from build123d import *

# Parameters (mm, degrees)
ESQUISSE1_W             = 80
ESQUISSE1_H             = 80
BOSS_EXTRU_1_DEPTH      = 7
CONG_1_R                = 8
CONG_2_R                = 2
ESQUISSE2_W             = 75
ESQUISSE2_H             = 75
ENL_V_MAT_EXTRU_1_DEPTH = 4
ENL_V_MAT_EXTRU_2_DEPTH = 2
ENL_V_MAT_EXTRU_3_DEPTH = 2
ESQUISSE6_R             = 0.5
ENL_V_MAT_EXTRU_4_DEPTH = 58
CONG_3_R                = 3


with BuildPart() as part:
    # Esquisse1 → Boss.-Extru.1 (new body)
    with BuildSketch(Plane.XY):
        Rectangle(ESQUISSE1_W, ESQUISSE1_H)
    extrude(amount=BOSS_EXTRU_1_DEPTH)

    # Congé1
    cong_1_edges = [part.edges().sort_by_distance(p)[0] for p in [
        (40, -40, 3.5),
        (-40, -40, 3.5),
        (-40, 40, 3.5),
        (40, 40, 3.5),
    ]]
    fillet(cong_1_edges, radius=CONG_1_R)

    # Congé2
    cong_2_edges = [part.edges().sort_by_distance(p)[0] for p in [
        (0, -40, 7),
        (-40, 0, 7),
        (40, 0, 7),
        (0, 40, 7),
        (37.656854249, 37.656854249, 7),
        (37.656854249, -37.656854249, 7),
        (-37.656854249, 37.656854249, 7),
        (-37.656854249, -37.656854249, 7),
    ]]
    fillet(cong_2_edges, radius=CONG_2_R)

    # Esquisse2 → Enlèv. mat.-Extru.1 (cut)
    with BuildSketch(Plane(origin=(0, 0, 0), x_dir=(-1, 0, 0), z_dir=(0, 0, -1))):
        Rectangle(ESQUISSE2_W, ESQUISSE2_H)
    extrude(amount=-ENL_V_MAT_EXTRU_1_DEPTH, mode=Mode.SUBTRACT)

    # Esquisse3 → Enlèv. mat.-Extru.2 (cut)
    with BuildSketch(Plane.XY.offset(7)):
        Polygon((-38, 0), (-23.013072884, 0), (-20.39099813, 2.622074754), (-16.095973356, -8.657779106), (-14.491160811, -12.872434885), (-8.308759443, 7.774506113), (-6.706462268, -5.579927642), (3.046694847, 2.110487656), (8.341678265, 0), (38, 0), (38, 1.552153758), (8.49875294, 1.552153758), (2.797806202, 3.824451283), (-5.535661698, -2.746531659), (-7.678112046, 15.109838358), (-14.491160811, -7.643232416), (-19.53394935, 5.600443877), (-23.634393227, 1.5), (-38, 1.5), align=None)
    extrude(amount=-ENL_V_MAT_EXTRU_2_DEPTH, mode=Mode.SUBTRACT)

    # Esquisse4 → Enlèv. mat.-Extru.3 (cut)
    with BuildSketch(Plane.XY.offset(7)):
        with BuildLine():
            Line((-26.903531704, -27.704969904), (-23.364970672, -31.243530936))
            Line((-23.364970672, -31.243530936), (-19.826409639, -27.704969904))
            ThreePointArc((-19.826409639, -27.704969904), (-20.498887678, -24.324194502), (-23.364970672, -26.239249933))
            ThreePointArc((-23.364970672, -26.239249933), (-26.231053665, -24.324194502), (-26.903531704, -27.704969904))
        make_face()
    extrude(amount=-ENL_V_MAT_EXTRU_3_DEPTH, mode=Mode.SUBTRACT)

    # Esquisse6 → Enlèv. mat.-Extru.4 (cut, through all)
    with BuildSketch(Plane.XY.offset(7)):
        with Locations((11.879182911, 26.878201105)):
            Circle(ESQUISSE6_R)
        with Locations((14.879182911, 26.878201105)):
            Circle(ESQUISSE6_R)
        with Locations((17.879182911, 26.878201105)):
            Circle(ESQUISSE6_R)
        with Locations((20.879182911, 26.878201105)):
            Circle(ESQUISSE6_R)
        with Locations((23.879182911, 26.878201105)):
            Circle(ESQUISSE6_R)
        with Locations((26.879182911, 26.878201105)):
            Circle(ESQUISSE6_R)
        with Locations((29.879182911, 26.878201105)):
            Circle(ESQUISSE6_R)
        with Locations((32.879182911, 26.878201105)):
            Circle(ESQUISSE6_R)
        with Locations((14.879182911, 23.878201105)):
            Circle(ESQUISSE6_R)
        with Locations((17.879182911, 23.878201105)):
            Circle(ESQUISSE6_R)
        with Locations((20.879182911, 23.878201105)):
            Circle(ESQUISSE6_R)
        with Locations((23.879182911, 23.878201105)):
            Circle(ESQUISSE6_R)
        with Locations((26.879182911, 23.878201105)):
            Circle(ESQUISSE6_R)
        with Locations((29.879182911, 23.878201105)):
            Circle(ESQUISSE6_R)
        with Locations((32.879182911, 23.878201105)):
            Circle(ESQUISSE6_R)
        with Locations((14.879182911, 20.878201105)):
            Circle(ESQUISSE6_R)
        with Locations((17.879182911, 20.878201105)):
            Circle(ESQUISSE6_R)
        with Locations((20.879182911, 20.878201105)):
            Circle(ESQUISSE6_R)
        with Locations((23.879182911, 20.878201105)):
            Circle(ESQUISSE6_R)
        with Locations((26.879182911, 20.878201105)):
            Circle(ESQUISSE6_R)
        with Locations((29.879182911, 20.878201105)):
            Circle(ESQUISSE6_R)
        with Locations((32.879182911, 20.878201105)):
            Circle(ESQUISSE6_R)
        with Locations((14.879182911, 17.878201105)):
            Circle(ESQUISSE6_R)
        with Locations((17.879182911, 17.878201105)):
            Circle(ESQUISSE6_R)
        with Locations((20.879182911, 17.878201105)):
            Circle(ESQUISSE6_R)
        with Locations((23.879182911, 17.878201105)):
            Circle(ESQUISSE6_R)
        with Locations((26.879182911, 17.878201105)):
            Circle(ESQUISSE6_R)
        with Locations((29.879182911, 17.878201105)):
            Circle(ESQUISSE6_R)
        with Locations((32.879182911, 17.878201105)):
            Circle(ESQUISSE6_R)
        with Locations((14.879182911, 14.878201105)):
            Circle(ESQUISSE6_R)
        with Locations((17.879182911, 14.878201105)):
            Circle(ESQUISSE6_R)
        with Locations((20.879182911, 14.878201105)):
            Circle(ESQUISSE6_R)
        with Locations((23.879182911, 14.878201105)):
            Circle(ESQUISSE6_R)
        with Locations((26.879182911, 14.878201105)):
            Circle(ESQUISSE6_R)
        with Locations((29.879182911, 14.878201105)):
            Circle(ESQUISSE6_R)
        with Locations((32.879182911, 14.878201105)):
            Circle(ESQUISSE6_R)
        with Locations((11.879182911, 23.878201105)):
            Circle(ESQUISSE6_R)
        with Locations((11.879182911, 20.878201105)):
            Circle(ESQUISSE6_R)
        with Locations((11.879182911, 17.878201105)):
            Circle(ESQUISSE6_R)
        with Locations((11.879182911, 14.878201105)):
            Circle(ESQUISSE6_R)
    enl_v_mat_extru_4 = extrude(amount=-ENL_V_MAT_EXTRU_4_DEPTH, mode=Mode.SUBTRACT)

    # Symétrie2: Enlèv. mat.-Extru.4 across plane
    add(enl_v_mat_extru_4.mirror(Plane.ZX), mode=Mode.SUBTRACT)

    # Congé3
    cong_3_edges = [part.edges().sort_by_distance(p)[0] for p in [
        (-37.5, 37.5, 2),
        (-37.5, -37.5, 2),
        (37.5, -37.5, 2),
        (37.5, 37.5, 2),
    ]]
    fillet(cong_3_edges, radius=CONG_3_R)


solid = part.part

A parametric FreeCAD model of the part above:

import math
import FreeCAD as App
import Part
import Sketcher

V = App.Vector
Q = App.Units.Quantity


def edges_at(feature, points):
    """Names of the edges that pass closest to the given points."""
    edges = feature.Shape.Edges
    near = lambda p: min(range(len(edges)), key=lambda i: edges[i].distToShape(Part.Vertex(*p))[0])
    return sorted({f"Edge{near(p) + 1}" for p in points})

doc = App.newDocument("Part")
params = doc.addObject("Spreadsheet::Sheet", "Params")
for row, (alias, value) in enumerate([
    ("sketch1_width", "80 mm"),
    ("pad1_length", "7 mm"),
    ("fillet_radius", "8 mm"),
    ("fillet2_radius", "2 mm"),
    ("sketch2_width", "75 mm"),
    ("pocket1_length", "4 mm"),
    ("sketch3_height", "1.5 mm"),
    ("pocket2_length", "2 mm"),
    ("pocket3_length", "2 mm"),
    ("sketch5_diameter", "1 mm"),
    ("fillet3_radius", "3 mm"),
], start=1):
    params.set(f"A{row}", alias)
    params.set(f"B{row}", "=" + value)
    params.setAlias(f"B{row}", alias)

body = doc.addObject("PartDesign::Body", "Body")

# Sketch on XY plane
sketch1 = body.newObject("Sketcher::SketchObject", "Sketch")
sketch1.AttachmentSupport = (doc.getObject("XY_Plane"), [""])
sketch1.MapMode = "FlatFace"
sketch1.addGeometry([
    Part.LineSegment(V(-40, 40, 0), V(-40, -40, 0)),
    Part.LineSegment(V(-40, -40, 0), V(40, -40, 0)),
    Part.LineSegment(V(40, -40, 0), V(40, 40, 0)),
    Part.LineSegment(V(40, 40, 0), V(-40, 40, 0)),
], False)
sketch1.addConstraint([
    Sketcher.Constraint("Coincident", 0, 2, 1, 1),
    Sketcher.Constraint("Coincident", 1, 2, 2, 1),
    Sketcher.Constraint("Coincident", 2, 2, 3, 1),
    Sketcher.Constraint("Coincident", 3, 2, 0, 1),
    Sketcher.Constraint("Vertical", 0),
    Sketcher.Constraint("Horizontal", 1),
    Sketcher.Constraint("Vertical", 2),
    Sketcher.Constraint("Horizontal", 3),
    Sketcher.Constraint("Symmetric", 0, 2, 2, 2, -1, 1),
    Sketcher.Constraint("Equal", 3, 0),
    Sketcher.Constraint("DistanceX", 1, 1, 1, 2, Q("80 mm")),
])
sketch1.setExpression("Constraints[10]", "Params.sketch1_width")
pad1 = body.newObject("PartDesign::Pad", "Pad")
pad1.Profile = sketch1
pad1.setExpression("Length", "Params.pad1_length")
doc.recompute()

fillet = body.newObject("PartDesign::Fillet", "Fillet")
fillet.Base = (pad1, edges_at(pad1, [
    (40, -40, 3.5),
    (-40, -40, 3.5),
    (-40, 40, 3.5),
    (40, 40, 3.5),
]))
fillet.setExpression("Radius", "Params.fillet_radius")
doc.recompute()

fillet2 = body.newObject("PartDesign::Fillet", "Fillet001")
fillet2.Base = (fillet, edges_at(fillet, [
    (0, -40, 7),
    (-40, 0, 7),
    (40, 0, 7),
    (0, 40, 7),
    (37.657, 37.657, 7),
    (37.657, -37.657, 7),
    (-37.657, 37.657, 7),
    (-37.657, -37.657, 7),
]))
fillet2.setExpression("Radius", "Params.fillet2_radius")

# Sketch on XY plane
sketch2 = body.newObject("Sketcher::SketchObject", "Sketch001")
sketch2.AttachmentSupport = (doc.getObject("XY_Plane"), [""])
sketch2.MapMode = "FlatFace"
sketch2.addGeometry([
    Part.LineSegment(V(38, 38, 0), V(38, -38, 0)),
    Part.LineSegment(V(38, -38, 0), V(-38, -38, 0)),
    Part.LineSegment(V(-38, -38, 0), V(-38, 38, 0)),
    Part.LineSegment(V(-38, 38, 0), V(38, 38, 0)),
], False)
sketch2.addConstraint([
    Sketcher.Constraint("Coincident", 0, 2, 1, 1),
    Sketcher.Constraint("Coincident", 1, 2, 2, 1),
    Sketcher.Constraint("Coincident", 2, 2, 3, 1),
    Sketcher.Constraint("Coincident", 3, 2, 0, 1),
    Sketcher.Constraint("Vertical", 0),
    Sketcher.Constraint("Horizontal", 1),
    Sketcher.Constraint("Vertical", 2),
    Sketcher.Constraint("Horizontal", 3),
    Sketcher.Constraint("Symmetric", 0, 2, 2, 2, -1, 1),
    Sketcher.Constraint("Equal", 3, 0),
    Sketcher.Constraint("DistanceX", 1, 2, 1, 1, Q("75 mm")),
])
sketch2.setExpression("Constraints[10]", "Params.sketch2_width")
pocket1 = body.newObject("PartDesign::Pocket", "Pocket")
pocket1.Profile = sketch2
pocket1.setExpression("Length", "Params.pocket1_length")
pocket1.Reversed = True

# Sketch on XY plane
sketch3 = body.newObject("Sketcher::SketchObject", "Sketch002")
sketch3.AttachmentSupport = (doc.getObject("XY_Plane"), [""])
sketch3.MapMode = "FlatFace"
sketch3.AttachmentOffset = App.Placement(V(0, 0, 7), App.Rotation())
sketch3.addGeometry([
    Part.LineSegment(V(-38, 0, 0), V(-23, 0, 0)),  # 0
    Part.LineSegment(V(-23, 0, 0), V(-20.4, 2.6, 0)),  # 1
    Part.LineSegment(V(-20.4, 2.6, 0), V(-16.1, -8.7, 0)),  # 2
    Part.LineSegment(V(-16.1, -8.7, 0), V(-14.5, -12.9, 0)),  # 3
    Part.LineSegment(V(-14.5, -12.9, 0), V(-8.3, 7.8, 0)),  # 4
    Part.LineSegment(V(-8.3, 7.8, 0), V(-6.7, -5.6, 0)),  # 5
    Part.LineSegment(V(-6.7, -5.6, 0), V(3, 2.1, 0)),  # 6
    Part.LineSegment(V(3, 2.1, 0), V(8.3, 0, 0)),  # 7
    Part.LineSegment(V(8.3, 0, 0), V(38, 0, 0)),  # 8
    Part.LineSegment(V(38, 0, 0), V(38, 1.6, 0)),  # 9
    Part.LineSegment(V(38, 1.6, 0), V(8.5, 1.6, 0)),  # 10
    Part.LineSegment(V(8.5, 1.6, 0), V(2.8, 3.8, 0)),  # 11
    Part.LineSegment(V(2.8, 3.8, 0), V(-5.5, -2.7, 0)),  # 12
    Part.LineSegment(V(-5.5, -2.7, 0), V(-7.7, 15.1, 0)),  # 13
    Part.LineSegment(V(-7.7, 15.1, 0), V(-14.5, -7.6, 0)),  # 14
    Part.LineSegment(V(-14.5, -7.6, 0), V(-19.5, 5.6, 0)),  # 15
    Part.LineSegment(V(-19.5, 5.6, 0), V(-23.6, 1.5, 0)),  # 16
    Part.LineSegment(V(-23.6, 1.5, 0), V(-38, 1.5, 0)),  # 17
    Part.LineSegment(V(-38, 1.5, 0), V(-38, 0, 0)),  # 18
], False)
sketch3.addConstraint([
    Sketcher.Constraint("Coincident", 0, 2, 1, 1),
    Sketcher.Constraint("Coincident", 1, 2, 2, 1),
    Sketcher.Constraint("Coincident", 2, 2, 3, 1),
    Sketcher.Constraint("Coincident", 3, 2, 4, 1),
    Sketcher.Constraint("Coincident", 4, 2, 5, 1),
    Sketcher.Constraint("Coincident", 5, 2, 6, 1),
    Sketcher.Constraint("Coincident", 6, 2, 7, 1),
    Sketcher.Constraint("Coincident", 7, 2, 8, 1),
    Sketcher.Constraint("Coincident", 8, 2, 9, 1),
    Sketcher.Constraint("Coincident", 9, 2, 10, 1),
    Sketcher.Constraint("Coincident", 10, 2, 11, 1),
    Sketcher.Constraint("Coincident", 11, 2, 12, 1),
    Sketcher.Constraint("Coincident", 12, 2, 13, 1),
    Sketcher.Constraint("Coincident", 13, 2, 14, 1),
    Sketcher.Constraint("Coincident", 14, 2, 15, 1),
    Sketcher.Constraint("Coincident", 15, 2, 16, 1),
    Sketcher.Constraint("Coincident", 16, 2, 17, 1),
    Sketcher.Constraint("Coincident", 17, 2, 18, 1),
    Sketcher.Constraint("Coincident", 18, 2, 0, 1),
    Sketcher.Constraint("Horizontal", 0),
    Sketcher.Constraint("Horizontal", 8),
    Sketcher.Constraint("Vertical", 9),
    Sketcher.Constraint("Horizontal", 10),
    Sketcher.Constraint("Horizontal", 17),
    Sketcher.Constraint("Vertical", 18),
    Sketcher.Constraint("Symmetric", 8, 2, 18, 2, -1, 1),
    Sketcher.Constraint("PointOnObject", 0, 2, -1),
    Sketcher.Constraint("Parallel", 2, 3),
    Sketcher.Constraint("Parallel", 7, 11),
    Sketcher.Constraint("Parallel", 6, 12),
    Sketcher.Constraint("Parallel", 5, 13),
    Sketcher.Constraint("Parallel", 4, 14),
    Sketcher.Constraint("Parallel", 3, 15),
    Sketcher.Constraint("Parallel", 1, 16),
    Sketcher.Constraint("Vertical", 3, 2, 14, 2),
    Sketcher.Constraint("Angle", 1, Q("45 deg")),
    Sketcher.Constraint("DistanceY", 18, 2, 18, 1, Q("1.5 mm")),
    Sketcher.Constraint("DistanceX", -1, 1, 8, 2, Q("38 mm")),
    Sketcher.Constraint("DistanceX", 1, 2, -1, 1, Q("20.390998 mm")),
    Sketcher.Constraint("DistanceX", 8, 1, 8, 2, Q("29.658322 mm")),
    Sketcher.Constraint("DistanceX", 0, 2, 2, 2, Q("6.9171 mm")),
    Sketcher.Constraint("DistanceX", 3, 2, 4, 2, Q("6.182401 mm")),
    Sketcher.Constraint("DistanceX", 3, 2, 5, 2, Q("7.784699 mm")),
    Sketcher.Constraint("DistanceX", 5, 2, 12, 2, Q("1.170801 mm")),
    Sketcher.Constraint("DistanceY", 14, 2, 12, 2, Q("4.896701 mm")),
    Sketcher.Constraint("Distance", 3, Q("4.50985 mm")),
    Sketcher.Constraint("Distance", 6, Q("12.420409 mm")),
    Sketcher.Constraint("Distance", 7, Q("5.700088 mm")),
    Sketcher.Constraint("Distance", 11, Q("6.137111 mm")),
    Sketcher.Constraint("Distance", 12, Q("10.612469 mm")),
    Sketcher.Constraint("Distance", 13, Q("17.984439 mm")),
    Sketcher.Constraint("DistanceX", 0, 1, 0, 2, Q("14.986927 mm")),
    Sketcher.Constraint("DistanceX", 10, 2, 10, 1, Q("29.501247 mm")),
    Sketcher.Constraint("DistanceX", 17, 2, 17, 1, Q("14.365607 mm")),
    Sketcher.Constraint("DistanceY", 9, 1, 9, 2, Q("1.552154 mm")),
    Sketcher.Constraint("DistanceY", 2, 2, -1, 1, Q("8.657779 mm")),
])
sketch3.setExpression("Constraints[36]", "Params.sketch3_height")
pocket2 = body.newObject("PartDesign::Pocket", "Pocket001")
pocket2.Profile = sketch3
pocket2.setExpression("Length", "Params.pocket2_length")

# Sketch on XY plane
sketch4 = body.newObject("Sketcher::SketchObject", "Sketch003")
sketch4.AttachmentSupport = (doc.getObject("XY_Plane"), [""])
sketch4.MapMode = "FlatFace"
sketch4.AttachmentOffset = App.Placement(V(0, 0, 7), App.Rotation())
sketch4.addGeometry([
    Part.LineSegment(V(-26.9, -27.7, 0), V(-23.4, -31.2, 0)),
    Part.LineSegment(V(-23.4, -31.2, 0), V(-19.8, -27.7, 0)),
    Part.ArcOfCircle(Part.Circle(V(-21.3, -26.2, 0), V(0, 0, 1), 2.1), math.radians(-45), math.radians(180)),
    Part.ArcOfCircle(Part.Circle(V(-25.4, -26.2, 0), V(0, 0, 1), 2.1), math.radians(0), math.radians(225)),
], False)
sketch4.addConstraint([
    Sketcher.Constraint("Coincident", 0, 2, 1, 1),
    Sketcher.Constraint("Tangent", 1, 2, 2, 1),
    Sketcher.Constraint("Tangent", 2, 2, 3, 1),
    Sketcher.Constraint("Tangent", 3, 2, 0, 1),
    Sketcher.Constraint("Equal", 2, 3),
    Sketcher.Constraint("Perpendicular", 0, 1),
    Sketcher.Constraint("Horizontal", 2, 3, 3, 3),
    Sketcher.Constraint("Horizontal", 1, 2, 3, 2),
    Sketcher.Constraint("Radius", 2, Q("2.072841 mm")),
    Sketcher.Constraint("DistanceX", 2, 3, -1, 1, Q("21.29213 mm")),
    Sketcher.Constraint("DistanceY", 2, 3, -1, 1, Q("26.23925 mm")),
])
pocket3 = body.newObject("PartDesign::Pocket", "Pocket002")
pocket3.Profile = sketch4
pocket3.setExpression("Length", "Params.pocket3_length")

# Sketch on XY plane
sketch5 = body.newObject("Sketcher::SketchObject", "Sketch004")
sketch5.AttachmentSupport = (doc.getObject("XY_Plane"), [""])
sketch5.MapMode = "FlatFace"
sketch5.AttachmentOffset = App.Placement(V(0, 0, 7), App.Rotation())
sketch5.addGeometry([
    Part.Circle(V(11.9, 26.9, 0), V(0, 0, 1), 0.5),  # 0
    Part.Circle(V(14.9, 26.9, 0), V(0, 0, 1), 0.5),  # 1
    Part.Circle(V(17.9, 26.9, 0), V(0, 0, 1), 0.5),  # 2
    Part.Circle(V(20.9, 26.9, 0), V(0, 0, 1), 0.5),  # 3
    Part.Circle(V(23.9, 26.9, 0), V(0, 0, 1), 0.5),  # 4
    Part.Circle(V(26.9, 26.9, 0), V(0, 0, 1), 0.5),  # 5
    Part.Circle(V(29.9, 26.9, 0), V(0, 0, 1), 0.5),  # 6
    Part.Circle(V(32.9, 26.9, 0), V(0, 0, 1), 0.5),  # 7
    Part.Circle(V(14.9, 23.9, 0), V(0, 0, 1), 0.5),  # 8
    Part.Circle(V(17.9, 23.9, 0), V(0, 0, 1), 0.5),  # 9
    Part.Circle(V(20.9, 23.9, 0), V(0, 0, 1), 0.5),  # 10
    Part.Circle(V(23.9, 23.9, 0), V(0, 0, 1), 0.5),  # 11
    Part.Circle(V(26.9, 23.9, 0), V(0, 0, 1), 0.5),  # 12
    Part.Circle(V(29.9, 23.9, 0), V(0, 0, 1), 0.5),  # 13
    Part.Circle(V(32.9, 23.9, 0), V(0, 0, 1), 0.5),  # 14
    Part.Circle(V(14.9, 20.9, 0), V(0, 0, 1), 0.5),  # 15
    Part.Circle(V(17.9, 20.9, 0), V(0, 0, 1), 0.5),  # 16
    Part.Circle(V(20.9, 20.9, 0), V(0, 0, 1), 0.5),  # 17
    Part.Circle(V(23.9, 20.9, 0), V(0, 0, 1), 0.5),  # 18
    Part.Circle(V(26.9, 20.9, 0), V(0, 0, 1), 0.5),  # 19
    Part.Circle(V(29.9, 20.9, 0), V(0, 0, 1), 0.5),  # 20
    Part.Circle(V(32.9, 20.9, 0), V(0, 0, 1), 0.5),  # 21
    Part.Circle(V(14.9, 17.9, 0), V(0, 0, 1), 0.5),  # 22
    Part.Circle(V(17.9, 17.9, 0), V(0, 0, 1), 0.5),  # 23
    Part.Circle(V(20.9, 17.9, 0), V(0, 0, 1), 0.5),  # 24
    Part.Circle(V(23.9, 17.9, 0), V(0, 0, 1), 0.5),  # 25
    Part.Circle(V(26.9, 17.9, 0), V(0, 0, 1), 0.5),  # 26
    Part.Circle(V(29.9, 17.9, 0), V(0, 0, 1), 0.5),  # 27
    Part.Circle(V(32.9, 17.9, 0), V(0, 0, 1), 0.5),  # 28
    Part.Circle(V(14.9, 14.9, 0), V(0, 0, 1), 0.5),  # 29
    Part.Circle(V(17.9, 14.9, 0), V(0, 0, 1), 0.5),  # 30
    Part.Circle(V(20.9, 14.9, 0), V(0, 0, 1), 0.5),  # 31
    Part.Circle(V(23.9, 14.9, 0), V(0, 0, 1), 0.5),  # 32
    Part.Circle(V(26.9, 14.9, 0), V(0, 0, 1), 0.5),  # 33
    Part.Circle(V(29.9, 14.9, 0), V(0, 0, 1), 0.5),  # 34
    Part.Circle(V(32.9, 14.9, 0), V(0, 0, 1), 0.5),  # 35
    Part.Circle(V(11.9, 23.9, 0), V(0, 0, 1), 0.5),  # 36
    Part.Circle(V(11.9, 20.9, 0), V(0, 0, 1), 0.5),  # 37
    Part.Circle(V(11.9, 17.9, 0), V(0, 0, 1), 0.5),  # 38
    Part.Circle(V(11.9, 14.9, 0), V(0, 0, 1), 0.5),  # 39
], False)
sketch5.addConstraint([
    Sketcher.Constraint("Equal", 0, 1),
    Sketcher.Constraint("Equal", 1, 2),
    Sketcher.Constraint("Equal", 2, 3),
    Sketcher.Constraint("Equal", 3, 4),
    Sketcher.Constraint("Equal", 4, 5),
    Sketcher.Constraint("Equal", 5, 6),
    Sketcher.Constraint("Equal", 6, 7),
    Sketcher.Constraint("Equal", 7, 8),
    Sketcher.Constraint("Equal", 8, 9),
    Sketcher.Constraint("Equal", 9, 10),
    Sketcher.Constraint("Equal", 10, 11),
    Sketcher.Constraint("Equal", 11, 12),
    Sketcher.Constraint("Equal", 12, 13),
    Sketcher.Constraint("Equal", 13, 14),
    Sketcher.Constraint("Equal", 14, 15),
    Sketcher.Constraint("Equal", 15, 16),
    Sketcher.Constraint("Equal", 16, 17),
    Sketcher.Constraint("Equal", 17, 18),
    Sketcher.Constraint("Equal", 18, 19),
    Sketcher.Constraint("Equal", 19, 20),
    Sketcher.Constraint("Equal", 20, 21),
    Sketcher.Constraint("Equal", 21, 22),
    Sketcher.Constraint("Equal", 22, 23),
    Sketcher.Constraint("Equal", 23, 24),
    Sketcher.Constraint("Equal", 24, 25),
    Sketcher.Constraint("Equal", 25, 26),
    Sketcher.Constraint("Equal", 26, 27),
    Sketcher.Constraint("Equal", 27, 28),
    Sketcher.Constraint("Equal", 28, 29),
    Sketcher.Constraint("Equal", 29, 30),
    Sketcher.Constraint("Equal", 30, 31),
    Sketcher.Constraint("Equal", 31, 32),
    Sketcher.Constraint("Equal", 32, 33),
    Sketcher.Constraint("Equal", 33, 34),
    Sketcher.Constraint("Equal", 34, 35),
    Sketcher.Constraint("Equal", 35, 36),
    Sketcher.Constraint("Equal", 36, 37),
    Sketcher.Constraint("Equal", 37, 38),
    Sketcher.Constraint("Equal", 38, 39),
    Sketcher.Constraint("Horizontal", 0, 3, 1, 3),
    Sketcher.Constraint("Horizontal", 1, 3, 2, 3),
    Sketcher.Constraint("Horizontal", 2, 3, 3, 3),
    Sketcher.Constraint("Horizontal", 3, 3, 4, 3),
    Sketcher.Constraint("Horizontal", 4, 3, 5, 3),
    Sketcher.Constraint("Horizontal", 5, 3, 6, 3),
    Sketcher.Constraint("Horizontal", 6, 3, 7, 3),
    Sketcher.Constraint("Horizontal", 8, 3, 9, 3),
    Sketcher.Constraint("Horizontal", 9, 3, 10, 3),
    Sketcher.Constraint("Horizontal", 10, 3, 11, 3),
    Sketcher.Constraint("Horizontal", 11, 3, 12, 3),
    Sketcher.Constraint("Horizontal", 12, 3, 13, 3),
    Sketcher.Constraint("Horizontal", 13, 3, 14, 3),
    Sketcher.Constraint("Horizontal", 15, 3, 16, 3),
    Sketcher.Constraint("Horizontal", 16, 3, 17, 3),
    Sketcher.Constraint("Horizontal", 17, 3, 18, 3),
    Sketcher.Constraint("Horizontal", 18, 3, 19, 3),
    Sketcher.Constraint("Horizontal", 19, 3, 20, 3),
    Sketcher.Constraint("Horizontal", 20, 3, 21, 3),
    Sketcher.Constraint("Horizontal", 22, 3, 23, 3),
    Sketcher.Constraint("Horizontal", 23, 3, 24, 3),
    Sketcher.Constraint("Horizontal", 24, 3, 25, 3),
    Sketcher.Constraint("Horizontal", 25, 3, 26, 3),
    Sketcher.Constraint("Horizontal", 26, 3, 27, 3),
    Sketcher.Constraint("Horizontal", 27, 3, 28, 3),
    Sketcher.Constraint("Horizontal", 29, 3, 30, 3),
    Sketcher.Constraint("Horizontal", 30, 3, 31, 3),
    Sketcher.Constraint("Horizontal", 31, 3, 32, 3),
    Sketcher.Constraint("Horizontal", 32, 3, 33, 3),
    Sketcher.Constraint("Horizontal", 33, 3, 34, 3),
    Sketcher.Constraint("Horizontal", 34, 3, 35, 3),
    Sketcher.Constraint("Horizontal", 14, 3, 36, 3),
    Sketcher.Constraint("Horizontal", 21, 3, 37, 3),
    Sketcher.Constraint("Horizontal", 28, 3, 38, 3),
    Sketcher.Constraint("Horizontal", 35, 3, 39, 3),
    Sketcher.Constraint("Vertical", 1, 3, 8, 3),
    Sketcher.Constraint("Vertical", 2, 3, 9, 3),
    Sketcher.Constraint("Vertical", 3, 3, 10, 3),
    Sketcher.Constraint("Vertical", 4, 3, 11, 3),
    Sketcher.Constraint("Vertical", 5, 3, 12, 3),
    Sketcher.Constraint("Vertical", 6, 3, 13, 3),
    Sketcher.Constraint("Vertical", 7, 3, 14, 3),
    Sketcher.Constraint("Vertical", 8, 3, 15, 3),
    Sketcher.Constraint("Vertical", 9, 3, 16, 3),
    Sketcher.Constraint("Vertical", 10, 3, 17, 3),
    Sketcher.Constraint("Vertical", 11, 3, 18, 3),
    Sketcher.Constraint("Vertical", 12, 3, 19, 3),
    Sketcher.Constraint("Vertical", 13, 3, 20, 3),
    Sketcher.Constraint("Vertical", 14, 3, 21, 3),
    Sketcher.Constraint("Vertical", 15, 3, 22, 3),
    Sketcher.Constraint("Vertical", 16, 3, 23, 3),
    Sketcher.Constraint("Vertical", 17, 3, 24, 3),
    Sketcher.Constraint("Vertical", 18, 3, 25, 3),
    Sketcher.Constraint("Vertical", 19, 3, 26, 3),
    Sketcher.Constraint("Vertical", 20, 3, 27, 3),
    Sketcher.Constraint("Vertical", 21, 3, 28, 3),
    Sketcher.Constraint("Vertical", 22, 3, 29, 3),
    Sketcher.Constraint("Vertical", 23, 3, 30, 3),
    Sketcher.Constraint("Vertical", 24, 3, 31, 3),
    Sketcher.Constraint("Vertical", 25, 3, 32, 3),
    Sketcher.Constraint("Vertical", 26, 3, 33, 3),
    Sketcher.Constraint("Vertical", 27, 3, 34, 3),
    Sketcher.Constraint("Vertical", 28, 3, 35, 3),
    Sketcher.Constraint("Vertical", 0, 3, 36, 3),
    Sketcher.Constraint("Vertical", 36, 3, 37, 3),
    Sketcher.Constraint("Vertical", 37, 3, 38, 3),
    Sketcher.Constraint("Vertical", 38, 3, 39, 3),
    Sketcher.Constraint("Diameter", 0, Q("1 mm")),
    Sketcher.Constraint("DistanceX", 0, 3, 1, 3, Q("3 mm")),
    Sketcher.Constraint("DistanceX", 1, 3, 2, 3, Q("3 mm")),
    Sketcher.Constraint("DistanceX", 2, 3, 3, 3, Q("3 mm")),
    Sketcher.Constraint("DistanceX", 3, 3, 4, 3, Q("3 mm")),
    Sketcher.Constraint("DistanceX", 4, 3, 5, 3, Q("3 mm")),
    Sketcher.Constraint("DistanceX", 5, 3, 6, 3, Q("3 mm")),
    Sketcher.Constraint("DistanceX", 6, 3, 7, 3, Q("3 mm")),
    Sketcher.Constraint("DistanceY", 8, 3, 1, 3, Q("3 mm")),
    Sketcher.Constraint("DistanceY", 15, 3, 8, 3, Q("3 mm")),
    Sketcher.Constraint("DistanceY", 22, 3, 15, 3, Q("3 mm")),
    Sketcher.Constraint("DistanceY", 29, 3, 22, 3, Q("3 mm")),
    Sketcher.Constraint("DistanceY", -1, 1, 0, 3, Q("26.878201 mm")),
    Sketcher.Constraint("DistanceX", -1, 1, 0, 3, Q("11.879183 mm")),
])
sketch5.setExpression("Constraints[106]", "Params.sketch5_diameter")
pocket4 = body.newObject("PartDesign::Pocket", "Pocket003")
pocket4.Profile = sketch5
pocket4.Type = "ThroughAll"
doc.recompute()

mirrored = body.newObject("PartDesign::Mirrored", "Mirrored")
mirrored.Originals = [pocket4]
mirrored.MirrorPlane = (doc.getObject("XZ_Plane"), [""])
body.Tip = mirrored
doc.recompute()

fillet3 = body.newObject("PartDesign::Fillet", "Fillet002")
fillet3.Base = (mirrored, edges_at(mirrored, [
    (-37.5, 37.5, 2),
    (-37.5, -37.5, 2),
    (37.5, -37.5, 2),
    (37.5, 37.5, 2),
]))
fillet3.setExpression("Radius", "Params.fillet3_radius")

doc.recompute()
